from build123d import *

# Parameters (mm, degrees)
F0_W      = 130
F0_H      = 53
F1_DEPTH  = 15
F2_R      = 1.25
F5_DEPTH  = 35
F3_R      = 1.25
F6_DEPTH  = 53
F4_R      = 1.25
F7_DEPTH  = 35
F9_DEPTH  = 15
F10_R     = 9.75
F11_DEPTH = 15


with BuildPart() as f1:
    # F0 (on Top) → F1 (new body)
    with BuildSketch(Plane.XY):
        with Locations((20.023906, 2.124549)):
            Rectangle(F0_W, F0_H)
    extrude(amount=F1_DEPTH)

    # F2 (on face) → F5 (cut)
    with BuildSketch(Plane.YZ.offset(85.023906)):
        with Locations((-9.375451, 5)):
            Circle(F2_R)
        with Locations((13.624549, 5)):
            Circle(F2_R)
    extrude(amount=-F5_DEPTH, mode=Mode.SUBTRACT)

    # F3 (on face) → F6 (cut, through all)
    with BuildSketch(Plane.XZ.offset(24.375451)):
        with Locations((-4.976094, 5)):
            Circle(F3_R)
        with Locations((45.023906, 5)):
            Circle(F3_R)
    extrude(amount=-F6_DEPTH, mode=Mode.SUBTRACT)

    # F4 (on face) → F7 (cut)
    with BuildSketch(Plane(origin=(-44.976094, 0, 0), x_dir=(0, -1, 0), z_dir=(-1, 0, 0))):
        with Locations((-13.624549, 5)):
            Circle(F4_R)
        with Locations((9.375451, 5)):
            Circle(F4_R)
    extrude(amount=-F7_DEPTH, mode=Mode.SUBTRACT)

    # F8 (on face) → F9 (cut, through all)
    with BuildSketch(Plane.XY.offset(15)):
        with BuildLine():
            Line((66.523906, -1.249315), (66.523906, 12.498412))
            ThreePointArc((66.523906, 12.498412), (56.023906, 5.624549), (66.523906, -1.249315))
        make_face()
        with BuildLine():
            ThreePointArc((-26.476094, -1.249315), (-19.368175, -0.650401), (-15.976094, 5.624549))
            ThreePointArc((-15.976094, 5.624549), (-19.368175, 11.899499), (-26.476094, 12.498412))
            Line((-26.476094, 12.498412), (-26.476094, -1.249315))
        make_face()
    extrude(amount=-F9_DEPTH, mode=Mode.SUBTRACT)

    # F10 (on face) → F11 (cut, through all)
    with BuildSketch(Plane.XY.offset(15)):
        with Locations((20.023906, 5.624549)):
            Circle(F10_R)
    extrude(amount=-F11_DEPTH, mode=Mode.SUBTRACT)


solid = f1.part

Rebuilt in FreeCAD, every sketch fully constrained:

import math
import FreeCAD as App
import Part
import Sketcher
Q = App.Units.Quantity


def add_polygon(sketch, points):
    """Adds a closed chain of lines whose ends are joined by coincident constraints."""
    first, n = sketch.GeometryCount, len(points)
    for a, b in zip(points, points[1:] + points[:1]):
        sketch.addGeometry(Part.LineSegment(App.Vector(*a, 0), App.Vector(*b, 0)), False)
    for i in range(n):
        sketch.addConstraint(Sketcher.Constraint("Coincident", first + i, 2, first + (i + 1) % n, 1))

doc = App.newDocument("Part")
body = doc.addObject("PartDesign::Body", "Body")

sketch1 = body.newObject("Sketcher::SketchObject", "Sketch")
sketch1.AttachmentSupport = (doc.getObject("XY_Plane"), [""])
sketch1.MapMode = "FlatFace"
add_polygon(sketch1, [(-45, 29), (-45, -24), (85, -24), (85, 29)])
sketch1.addConstraint([
    Sketcher.Constraint("Vertical", 0),
    Sketcher.Constraint("Horizontal", 1),
    Sketcher.Constraint("Vertical", 2),
    Sketcher.Constraint("Horizontal", 3),
    Sketcher.Constraint("DistanceX", 1, 1, 1, 2, Q("130 mm")),
    Sketcher.Constraint("DistanceY", 0, 2, 0, 1, Q("53 mm")),
    Sketcher.Constraint("DistanceY", 0, 2, -1, 1, Q("24.375451 mm")),
    Sketcher.Constraint("DistanceX", 0, 2, -1, 1, Q("44.976094 mm")),
])
pad1 = body.newObject("PartDesign::Pad", "Pad")
pad1.Profile = sketch1
pad1.Length = 15

sketch2 = body.newObject("Sketcher::SketchObject", "Sketch001")
sketch2.AttachmentSupport = (doc.getObject("YZ_Plane"), [""])
sketch2.MapMode = "FlatFace"
sketch2.AttachmentOffset = App.Placement(App.Vector(0, 0, 85.023906), App.Rotation())
sketch2.addGeometry([
    Part.Circle(App.Vector(-9.4, 5, 0), App.Vector(0, 0, 1), 1.2),
    Part.Circle(App.Vector(13.6, 5, 0), App.Vector(0, 0, 1), 1.2),
], False)
sketch2.addConstraint([
    Sketcher.Constraint("Equal", 0, 1),
    Sketcher.Constraint("Horizontal", 0, 3, 1, 3),
    Sketcher.Constraint("Diameter", 0, Q("2.5 mm")),
    Sketcher.Constraint("DistanceY", -1, 1, 0, 3, Q("5 mm")),
    Sketcher.Constraint("DistanceX", 0, 3, 1, 3, Q("23 mm")),
    Sketcher.Constraint("DistanceX", 0, 3, -1, 1, Q("9.375451 mm")),
])
pocket1 = body.newObject("PartDesign::Pocket", "Pocket")
pocket1.Profile = sketch2
pocket1.Length = 35

sketch3 = body.newObject("Sketcher::SketchObject", "Sketch002")
sketch3.AttachmentSupport = (doc.getObject("XZ_Plane"), [""])
sketch3.MapMode = "FlatFace"
sketch3.AttachmentOffset = App.Placement(App.Vector(0, 0, 24.375451), App.Rotation())
sketch3.addGeometry([
    Part.Circle(App.Vector(-5, 5, 0), App.Vector(0, 0, 1), 1.2),
    Part.Circle(App.Vector(45, 5, 0), App.Vector(0, 0, 1), 1.2),
], False)
sketch3.addConstraint([
    Sketcher.Constraint("Equal", 0, 1),
    Sketcher.Constraint("Horizontal", 0, 3, 1, 3),
    Sketcher.Constraint("Diameter", 0, Q("2.5 mm")),
    Sketcher.Constraint("DistanceY", -1, 1, 0, 3, Q("5 mm")),
    Sketcher.Constraint("DistanceX", 0, 3, 1, 3, Q("50 mm")),
    Sketcher.Constraint("DistanceX", 0, 3, -1, 1, Q("4.976094 mm")),
])
pocket2 = body.newObject("PartDesign::Pocket", "Pocket001")
pocket2.Profile = sketch3
pocket2.Type = "ThroughAll"

sketch4 = body.newObject("Sketcher::SketchObject", "Sketch003")
sketch4.AttachmentSupport = (doc.getObject("YZ_Plane"), [""])
sketch4.MapMode = "FlatFace"
sketch4.AttachmentOffset = App.Placement(App.Vector(0, 0, -44.976094), App.Rotation())
sketch4.addGeometry([
    Part.Circle(App.Vector(13.6, 5, 0), App.Vector(0, 0, 1), 1.2),
    Part.Circle(App.Vector(-9.4, 5, 0), App.Vector(0, 0, 1), 1.2),
], False)
sketch4.addConstraint([
    Sketcher.Constraint("Equal", 0, 1),
    Sketcher.Constraint("Horizontal", 0, 3, 1, 3),
    Sketcher.Constraint("Diameter", 0, Q("2.5 mm")),
    Sketcher.Constraint("DistanceY", -1, 1, 0, 3, Q("5 mm")),
    Sketcher.Constraint("DistanceX", 1, 3, 0, 3, Q("23 mm")),
    Sketcher.Constraint("DistanceX", -1, 1, 0, 3, Q("13.624549 mm")),
])
pocket3 = body.newObject("PartDesign::Pocket", "Pocket002")
pocket3.Profile = sketch4
pocket3.Length = 35
pocket3.Reversed = True

sketch5 = body.newObject("Sketcher::SketchObject", "Sketch004")
sketch5.AttachmentSupport = (doc.getObject("XY_Plane"), [""])
sketch5.MapMode = "FlatFace"
sketch5.AttachmentOffset = App.Placement(App.Vector(0, 0, 15), App.Rotation())
sketch5.addGeometry([
    Part.LineSegment(App.Vector(67, -1, 0), App.Vector(67, 12, 0)),
    Part.ArcOfCircle(Part.Circle(App.Vector(64, 6, 0), App.Vector(0, 0, 1), 7), math.radians(66), math.radians(294)),
    Part.ArcOfCircle(Part.Circle(App.Vector(-23, 6, 0), App.Vector(0, 0, 1), 8), math.radians(-114), math.radians(0)),
    Part.ArcOfCircle(Part.Circle(App.Vector(-23, 6, 0), App.Vector(0, 0, 1), 7), math.radians(0), math.radians(114)),
    Part.LineSegment(App.Vector(-26, 12, 0), App.Vector(-26, -1, 0)),
], False)
sketch5.addConstraint([
    Sketcher.Constraint("Coincident", 0, 1, 1, 2),
    Sketcher.Constraint("Coincident", 1, 1, 0, 2),
    Sketcher.Constraint("Tangent", 2, 2, 3, 1),
    Sketcher.Constraint("Coincident", 3, 2, 4, 1),
    Sketcher.Constraint("Coincident", 4, 2, 2, 1),
    Sketcher.Constraint("Vertical", 0),
    Sketcher.Constraint("Vertical", 4),
    Sketcher.Constraint("Equal", 1, 2),
    Sketcher.Constraint("Equal", 2, 3),
    Sketcher.Constraint("Horizontal", 1, 3, 2, 3),
    Sketcher.Constraint("Horizontal", 3, 3, 2, 2),
    Sketcher.Constraint("Horizontal", 1, 1, 3, 2),
    Sketcher.Constraint("Radius", 1, Q("7.5 mm")),
    Sketcher.Constraint("DistanceX", 2, 3, 1, 3, Q("87.000001 mm")),
    Sketcher.Constraint("DistanceX", 1, 3, 0, 1, Q("3 mm")),
    Sketcher.Constraint("DistanceY", -1, 1, 1, 3, Q("5.624549 mm")),
    Sketcher.Constraint("DistanceX", -1, 1, 1, 3, Q("63.523906 mm")),
])
pocket4 = body.newObject("PartDesign::Pocket", "Pocket003")
pocket4.Profile = sketch5
pocket4.Type = "ThroughAll"

sketch6 = body.newObject("Sketcher::SketchObject", "Sketch005")
sketch6.AttachmentSupport = (doc.getObject("XY_Plane"), [""])
sketch6.MapMode = "FlatFace"
sketch6.AttachmentOffset = App.Placement(App.Vector(0, 0, 15), App.Rotation())
sketch6.addGeometry(Part.Circle(App.Vector(20, 6, 0), App.Vector(0, 0, 1), 10), False)
sketch6.addConstraint([
    Sketcher.Constraint("Diameter", 0, Q("19.5 mm")),
    Sketcher.Constraint("DistanceY", -1, 1, 0, 3, Q("5.624549 mm")),
    Sketcher.Constraint("DistanceX", -1, 1, 0, 3, Q("20.023906 mm")),
])
pocket5 = body.newObject("PartDesign::Pocket", "Pocket004")
pocket5.Profile = sketch6
pocket5.Type = "ThroughAll"

doc.recompute()
